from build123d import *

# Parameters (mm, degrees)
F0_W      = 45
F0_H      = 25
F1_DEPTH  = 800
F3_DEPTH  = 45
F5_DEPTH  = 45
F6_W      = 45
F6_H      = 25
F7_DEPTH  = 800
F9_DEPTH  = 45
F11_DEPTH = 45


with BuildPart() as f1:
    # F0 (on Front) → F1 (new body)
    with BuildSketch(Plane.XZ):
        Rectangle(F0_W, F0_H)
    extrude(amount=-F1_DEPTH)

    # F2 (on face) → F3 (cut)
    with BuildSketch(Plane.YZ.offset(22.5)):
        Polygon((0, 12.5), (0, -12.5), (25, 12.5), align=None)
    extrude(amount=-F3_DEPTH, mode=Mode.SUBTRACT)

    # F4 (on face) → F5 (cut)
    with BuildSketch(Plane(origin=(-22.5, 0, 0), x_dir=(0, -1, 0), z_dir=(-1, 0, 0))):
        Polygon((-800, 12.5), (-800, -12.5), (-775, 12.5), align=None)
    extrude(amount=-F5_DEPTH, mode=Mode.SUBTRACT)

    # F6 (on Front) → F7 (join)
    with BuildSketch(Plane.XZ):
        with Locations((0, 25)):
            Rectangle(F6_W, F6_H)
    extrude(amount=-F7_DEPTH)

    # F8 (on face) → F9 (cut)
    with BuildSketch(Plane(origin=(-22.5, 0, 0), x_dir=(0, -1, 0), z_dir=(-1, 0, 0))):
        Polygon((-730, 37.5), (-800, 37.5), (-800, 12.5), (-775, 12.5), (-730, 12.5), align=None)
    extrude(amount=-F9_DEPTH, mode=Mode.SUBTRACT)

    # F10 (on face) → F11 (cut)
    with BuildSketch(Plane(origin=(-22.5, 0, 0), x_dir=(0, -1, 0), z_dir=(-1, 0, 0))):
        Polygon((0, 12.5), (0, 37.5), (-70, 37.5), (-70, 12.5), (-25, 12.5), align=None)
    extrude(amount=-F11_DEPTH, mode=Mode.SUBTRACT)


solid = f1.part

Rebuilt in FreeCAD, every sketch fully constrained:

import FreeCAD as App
import Part
import Sketcher
from FreeCAD import Vector
Q = App.Units.Quantity


def add_polygon(sketch, points):
    """Adds a closed chain of lines whose ends are joined by coincident constraints."""
    first, n = sketch.GeometryCount, len(points)
    for a, b in zip(points, points[1:] + points[:1]):
        sketch.addGeometry(Part.LineSegment(App.Vector(*a, 0), App.Vector(*b, 0)), False)
    for i in range(n):
        sketch.addConstraint(Sketcher.Constraint("Coincident", first + i, 2, first + (i + 1) % n, 1))

doc = App.newDocument("Part")
body = doc.addObject("PartDesign::Body", "Body")

# Sketch on XZ plane
sketch1 = body.newObject("Sketcher::SketchObject", "Sketch")
sketch1.AttachmentSupport = (doc.getObject("XZ_Plane"), [""])
sketch1.MapMode = "FlatFace"
add_polygon(sketch1, [(-22, 12), (-22, -12), (22, -12), (22, 12)])  # lines 0-3
sketch1.addConstraint(Sketcher.Constraint("Vertical", 0))
sketch1.addConstraint(Sketcher.Constraint("Horizontal", 1))
sketch1.addConstraint(Sketcher.Constraint("Vertical", 2))
sketch1.addConstraint(Sketcher.Constraint("Horizontal", 3))
sketch1.addConstraint(Sketcher.Constraint("Symmetric", 0, 2, 2, 2, -1, 1))
sketch1.addConstraint(Sketcher.Constraint("DistanceX", 1, 1, 1, 2, Q("45 mm")))
sketch1.addConstraint(Sketcher.Constraint("DistanceY", 0, 2, 0, 1, Q("25 mm")))
pad1 = body.newObject("PartDesign::Pad", "Pad")
pad1.Profile = sketch1
pad1.Length = 800
pad1.Reversed = True

# Sketch on YZ plane
sketch2 = body.newObject("Sketcher::SketchObject", "Sketch001")
sketch2.AttachmentSupport = (doc.getObject("YZ_Plane"), [""])
sketch2.MapMode = "FlatFace"
sketch2.AttachmentOffset = App.Placement(Vector(0, 0, 22.5), App.Rotation())
add_polygon(sketch2, [(0, 12), (0, -12), (25, 12)])  # lines 0-2
sketch2.addConstraint(Sketcher.Constraint("Vertical", 0))
sketch2.addConstraint(Sketcher.Constraint("Horizontal", 2))
sketch2.addConstraint(Sketcher.Constraint("Symmetric", 0, 2, 2, 2, -1, 1))
sketch2.addConstraint(Sketcher.Constraint("Equal", 2, 0))
sketch2.addConstraint(Sketcher.Constraint("DistanceX", 2, 2, 2, 1, Q("25 mm")))
pocket1 = body.newObject("PartDesign::Pocket", "Pocket")
pocket1.Profile = sketch2
pocket1.Length = 45

# Sketch on YZ plane
sketch3 = body.newObject("Sketcher::SketchObject", "Sketch002")
sketch3.AttachmentSupport = (doc.getObject("YZ_Plane"), [""])
sketch3.MapMode = "FlatFace"
sketch3.AttachmentOffset = App.Placement(Vector(0, 0, -22.5), App.Rotation())
add_polygon(sketch3, [(800, 12), (800, -12), (775, 12)])  # lines 0-2
sketch3.addConstraint(Sketcher.Constraint("Vertical", 0))
sketch3.addConstraint(Sketcher.Constraint("Horizontal", 2))
sketch3.addConstraint(Sketcher.Constraint("Equal", 2, 0))
sketch3.addConstraint(Sketcher.Constraint("DistanceX", 2, 1, 2, 2, Q("25 mm")))
sketch3.addConstraint(Sketcher.Constraint("DistanceX", -1, 1, 0, 2, Q("800 mm")))
sketch3.addConstraint(Sketcher.Constraint("DistanceY", 0, 2, -1, 1, Q("12.5 mm")))
pocket2 = body.newObject("PartDesign::Pocket", "Pocket001")
pocket2.Profile = sketch3
pocket2.Length = 45
pocket2.Reversed = True

# Sketch on XZ plane
sketch4 = body.newObject("Sketcher::SketchObject", "Sketch003")
sketch4.AttachmentSupport = (doc.getObject("XZ_Plane"), [""])
sketch4.MapMode = "FlatFace"
add_polygon(sketch4, [(-22, 38), (-22, 12), (22, 12), (22, 38)])  # lines 0-3
sketch4.addConstraint(Sketcher.Constraint("Vertical", 0))
sketch4.addConstraint(Sketcher.Constraint("Horizontal", 1))
sketch4.addConstraint(Sketcher.Constraint("Vertical", 2))
sketch4.addConstraint(Sketcher.Constraint("Horizontal", 3))
sketch4.addConstraint(Sketcher.Constraint("DistanceX", 1, 1, 1, 2, Q("45 mm")))
sketch4.addConstraint(Sketcher.Constraint("DistanceY", 0, 2, 0, 1, Q("25 mm")))
sketch4.addConstraint(Sketcher.Constraint("DistanceX", 0, 2, -1, 1, Q("22.5 mm")))
sketch4.addConstraint(Sketcher.Constraint("DistanceY", -1, 1, 0, 2, Q("12.5 mm")))
pad2 = body.newObject("PartDesign::Pad", "Pad001")
pad2.Profile = sketch4
pad2.Length = 800
pad2.Reversed = True

# Sketch on YZ plane
sketch5 = body.newObject("Sketcher::SketchObject", "Sketch004")
sketch5.AttachmentSupport = (doc.getObject("YZ_Plane"), [""])
sketch5.MapMode = "FlatFace"
sketch5.AttachmentOffset = App.Placement(Vector(0, 0, -22.5), App.Rotation())
add_polygon(sketch5, [(730, 38), (800, 38), (800, 12), (730, 12)])  # lines 0-3
sketch5.addConstraint(Sketcher.Constraint("Horizontal", 0))
sketch5.addConstraint(Sketcher.Constraint("Vertical", 1))
sketch5.addConstraint(Sketcher.Constraint("Horizontal", 2))
sketch5.addConstraint(Sketcher.Constraint("Vertical", 3))
sketch5.addConstraint(Sketcher.Constraint("DistanceX", 0, 1, 0, 2, Q("70 mm")))
sketch5.addConstraint(Sketcher.Constraint("DistanceY", 1, 2, 1, 1, Q("25 mm")))
sketch5.addConstraint(Sketcher.Constraint("DistanceX", -1, 1, 0, 2, Q("800 mm")))
sketch5.addConstraint(Sketcher.Constraint("DistanceY", -1, 1, 0, 2, Q("37.5 mm")))
pocket3 = body.newObject("PartDesign::Pocket", "Pocket002")
pocket3.Profile = sketch5
pocket3.Length = 45
pocket3.Reversed = True

# Sketch on YZ plane
sketch6 = body.newObject("Sketcher::SketchObject", "Sketch005")
sketch6.AttachmentSupport = (doc.getObject("YZ_Plane"), [""])
sketch6.MapMode = "FlatFace"
sketch6.AttachmentOffset = App.Placement(Vector(0, 0, -22.5), App.Rotation())
add_polygon(sketch6, [(0, 12), (0, 38), (70, 38), (70, 12)])  # lines 0-3
sketch6.addConstraint(Sketcher.Constraint("Vertical", 0))
sketch6.addConstraint(Sketcher.Constraint("Horizontal", 1))
sketch6.addConstraint(Sketcher.Constraint("Vertical", 2))
sketch6.addConstraint(Sketcher.Constraint("Horizontal", 3))
sketch6.addConstraint(Sketcher.Constraint("PointOnObject", 0, 2, -2))
sketch6.addConstraint(Sketcher.Constraint("DistanceX", 1, 1, 1, 2, Q("70 mm")))
sketch6.addConstraint(Sketcher.Constraint("DistanceY", 0, 1, 0, 2, Q("25 mm")))
sketch6.addConstraint(Sketcher.Constraint("DistanceY", -1, 1, 0, 2, Q("37.5 mm")))
pocket4 = body.newObject("PartDesign::Pocket", "Pocket003")
pocket4.Profile = sketch6
pocket4.Length = 45
pocket4.Reversed = True

doc.recompute()
